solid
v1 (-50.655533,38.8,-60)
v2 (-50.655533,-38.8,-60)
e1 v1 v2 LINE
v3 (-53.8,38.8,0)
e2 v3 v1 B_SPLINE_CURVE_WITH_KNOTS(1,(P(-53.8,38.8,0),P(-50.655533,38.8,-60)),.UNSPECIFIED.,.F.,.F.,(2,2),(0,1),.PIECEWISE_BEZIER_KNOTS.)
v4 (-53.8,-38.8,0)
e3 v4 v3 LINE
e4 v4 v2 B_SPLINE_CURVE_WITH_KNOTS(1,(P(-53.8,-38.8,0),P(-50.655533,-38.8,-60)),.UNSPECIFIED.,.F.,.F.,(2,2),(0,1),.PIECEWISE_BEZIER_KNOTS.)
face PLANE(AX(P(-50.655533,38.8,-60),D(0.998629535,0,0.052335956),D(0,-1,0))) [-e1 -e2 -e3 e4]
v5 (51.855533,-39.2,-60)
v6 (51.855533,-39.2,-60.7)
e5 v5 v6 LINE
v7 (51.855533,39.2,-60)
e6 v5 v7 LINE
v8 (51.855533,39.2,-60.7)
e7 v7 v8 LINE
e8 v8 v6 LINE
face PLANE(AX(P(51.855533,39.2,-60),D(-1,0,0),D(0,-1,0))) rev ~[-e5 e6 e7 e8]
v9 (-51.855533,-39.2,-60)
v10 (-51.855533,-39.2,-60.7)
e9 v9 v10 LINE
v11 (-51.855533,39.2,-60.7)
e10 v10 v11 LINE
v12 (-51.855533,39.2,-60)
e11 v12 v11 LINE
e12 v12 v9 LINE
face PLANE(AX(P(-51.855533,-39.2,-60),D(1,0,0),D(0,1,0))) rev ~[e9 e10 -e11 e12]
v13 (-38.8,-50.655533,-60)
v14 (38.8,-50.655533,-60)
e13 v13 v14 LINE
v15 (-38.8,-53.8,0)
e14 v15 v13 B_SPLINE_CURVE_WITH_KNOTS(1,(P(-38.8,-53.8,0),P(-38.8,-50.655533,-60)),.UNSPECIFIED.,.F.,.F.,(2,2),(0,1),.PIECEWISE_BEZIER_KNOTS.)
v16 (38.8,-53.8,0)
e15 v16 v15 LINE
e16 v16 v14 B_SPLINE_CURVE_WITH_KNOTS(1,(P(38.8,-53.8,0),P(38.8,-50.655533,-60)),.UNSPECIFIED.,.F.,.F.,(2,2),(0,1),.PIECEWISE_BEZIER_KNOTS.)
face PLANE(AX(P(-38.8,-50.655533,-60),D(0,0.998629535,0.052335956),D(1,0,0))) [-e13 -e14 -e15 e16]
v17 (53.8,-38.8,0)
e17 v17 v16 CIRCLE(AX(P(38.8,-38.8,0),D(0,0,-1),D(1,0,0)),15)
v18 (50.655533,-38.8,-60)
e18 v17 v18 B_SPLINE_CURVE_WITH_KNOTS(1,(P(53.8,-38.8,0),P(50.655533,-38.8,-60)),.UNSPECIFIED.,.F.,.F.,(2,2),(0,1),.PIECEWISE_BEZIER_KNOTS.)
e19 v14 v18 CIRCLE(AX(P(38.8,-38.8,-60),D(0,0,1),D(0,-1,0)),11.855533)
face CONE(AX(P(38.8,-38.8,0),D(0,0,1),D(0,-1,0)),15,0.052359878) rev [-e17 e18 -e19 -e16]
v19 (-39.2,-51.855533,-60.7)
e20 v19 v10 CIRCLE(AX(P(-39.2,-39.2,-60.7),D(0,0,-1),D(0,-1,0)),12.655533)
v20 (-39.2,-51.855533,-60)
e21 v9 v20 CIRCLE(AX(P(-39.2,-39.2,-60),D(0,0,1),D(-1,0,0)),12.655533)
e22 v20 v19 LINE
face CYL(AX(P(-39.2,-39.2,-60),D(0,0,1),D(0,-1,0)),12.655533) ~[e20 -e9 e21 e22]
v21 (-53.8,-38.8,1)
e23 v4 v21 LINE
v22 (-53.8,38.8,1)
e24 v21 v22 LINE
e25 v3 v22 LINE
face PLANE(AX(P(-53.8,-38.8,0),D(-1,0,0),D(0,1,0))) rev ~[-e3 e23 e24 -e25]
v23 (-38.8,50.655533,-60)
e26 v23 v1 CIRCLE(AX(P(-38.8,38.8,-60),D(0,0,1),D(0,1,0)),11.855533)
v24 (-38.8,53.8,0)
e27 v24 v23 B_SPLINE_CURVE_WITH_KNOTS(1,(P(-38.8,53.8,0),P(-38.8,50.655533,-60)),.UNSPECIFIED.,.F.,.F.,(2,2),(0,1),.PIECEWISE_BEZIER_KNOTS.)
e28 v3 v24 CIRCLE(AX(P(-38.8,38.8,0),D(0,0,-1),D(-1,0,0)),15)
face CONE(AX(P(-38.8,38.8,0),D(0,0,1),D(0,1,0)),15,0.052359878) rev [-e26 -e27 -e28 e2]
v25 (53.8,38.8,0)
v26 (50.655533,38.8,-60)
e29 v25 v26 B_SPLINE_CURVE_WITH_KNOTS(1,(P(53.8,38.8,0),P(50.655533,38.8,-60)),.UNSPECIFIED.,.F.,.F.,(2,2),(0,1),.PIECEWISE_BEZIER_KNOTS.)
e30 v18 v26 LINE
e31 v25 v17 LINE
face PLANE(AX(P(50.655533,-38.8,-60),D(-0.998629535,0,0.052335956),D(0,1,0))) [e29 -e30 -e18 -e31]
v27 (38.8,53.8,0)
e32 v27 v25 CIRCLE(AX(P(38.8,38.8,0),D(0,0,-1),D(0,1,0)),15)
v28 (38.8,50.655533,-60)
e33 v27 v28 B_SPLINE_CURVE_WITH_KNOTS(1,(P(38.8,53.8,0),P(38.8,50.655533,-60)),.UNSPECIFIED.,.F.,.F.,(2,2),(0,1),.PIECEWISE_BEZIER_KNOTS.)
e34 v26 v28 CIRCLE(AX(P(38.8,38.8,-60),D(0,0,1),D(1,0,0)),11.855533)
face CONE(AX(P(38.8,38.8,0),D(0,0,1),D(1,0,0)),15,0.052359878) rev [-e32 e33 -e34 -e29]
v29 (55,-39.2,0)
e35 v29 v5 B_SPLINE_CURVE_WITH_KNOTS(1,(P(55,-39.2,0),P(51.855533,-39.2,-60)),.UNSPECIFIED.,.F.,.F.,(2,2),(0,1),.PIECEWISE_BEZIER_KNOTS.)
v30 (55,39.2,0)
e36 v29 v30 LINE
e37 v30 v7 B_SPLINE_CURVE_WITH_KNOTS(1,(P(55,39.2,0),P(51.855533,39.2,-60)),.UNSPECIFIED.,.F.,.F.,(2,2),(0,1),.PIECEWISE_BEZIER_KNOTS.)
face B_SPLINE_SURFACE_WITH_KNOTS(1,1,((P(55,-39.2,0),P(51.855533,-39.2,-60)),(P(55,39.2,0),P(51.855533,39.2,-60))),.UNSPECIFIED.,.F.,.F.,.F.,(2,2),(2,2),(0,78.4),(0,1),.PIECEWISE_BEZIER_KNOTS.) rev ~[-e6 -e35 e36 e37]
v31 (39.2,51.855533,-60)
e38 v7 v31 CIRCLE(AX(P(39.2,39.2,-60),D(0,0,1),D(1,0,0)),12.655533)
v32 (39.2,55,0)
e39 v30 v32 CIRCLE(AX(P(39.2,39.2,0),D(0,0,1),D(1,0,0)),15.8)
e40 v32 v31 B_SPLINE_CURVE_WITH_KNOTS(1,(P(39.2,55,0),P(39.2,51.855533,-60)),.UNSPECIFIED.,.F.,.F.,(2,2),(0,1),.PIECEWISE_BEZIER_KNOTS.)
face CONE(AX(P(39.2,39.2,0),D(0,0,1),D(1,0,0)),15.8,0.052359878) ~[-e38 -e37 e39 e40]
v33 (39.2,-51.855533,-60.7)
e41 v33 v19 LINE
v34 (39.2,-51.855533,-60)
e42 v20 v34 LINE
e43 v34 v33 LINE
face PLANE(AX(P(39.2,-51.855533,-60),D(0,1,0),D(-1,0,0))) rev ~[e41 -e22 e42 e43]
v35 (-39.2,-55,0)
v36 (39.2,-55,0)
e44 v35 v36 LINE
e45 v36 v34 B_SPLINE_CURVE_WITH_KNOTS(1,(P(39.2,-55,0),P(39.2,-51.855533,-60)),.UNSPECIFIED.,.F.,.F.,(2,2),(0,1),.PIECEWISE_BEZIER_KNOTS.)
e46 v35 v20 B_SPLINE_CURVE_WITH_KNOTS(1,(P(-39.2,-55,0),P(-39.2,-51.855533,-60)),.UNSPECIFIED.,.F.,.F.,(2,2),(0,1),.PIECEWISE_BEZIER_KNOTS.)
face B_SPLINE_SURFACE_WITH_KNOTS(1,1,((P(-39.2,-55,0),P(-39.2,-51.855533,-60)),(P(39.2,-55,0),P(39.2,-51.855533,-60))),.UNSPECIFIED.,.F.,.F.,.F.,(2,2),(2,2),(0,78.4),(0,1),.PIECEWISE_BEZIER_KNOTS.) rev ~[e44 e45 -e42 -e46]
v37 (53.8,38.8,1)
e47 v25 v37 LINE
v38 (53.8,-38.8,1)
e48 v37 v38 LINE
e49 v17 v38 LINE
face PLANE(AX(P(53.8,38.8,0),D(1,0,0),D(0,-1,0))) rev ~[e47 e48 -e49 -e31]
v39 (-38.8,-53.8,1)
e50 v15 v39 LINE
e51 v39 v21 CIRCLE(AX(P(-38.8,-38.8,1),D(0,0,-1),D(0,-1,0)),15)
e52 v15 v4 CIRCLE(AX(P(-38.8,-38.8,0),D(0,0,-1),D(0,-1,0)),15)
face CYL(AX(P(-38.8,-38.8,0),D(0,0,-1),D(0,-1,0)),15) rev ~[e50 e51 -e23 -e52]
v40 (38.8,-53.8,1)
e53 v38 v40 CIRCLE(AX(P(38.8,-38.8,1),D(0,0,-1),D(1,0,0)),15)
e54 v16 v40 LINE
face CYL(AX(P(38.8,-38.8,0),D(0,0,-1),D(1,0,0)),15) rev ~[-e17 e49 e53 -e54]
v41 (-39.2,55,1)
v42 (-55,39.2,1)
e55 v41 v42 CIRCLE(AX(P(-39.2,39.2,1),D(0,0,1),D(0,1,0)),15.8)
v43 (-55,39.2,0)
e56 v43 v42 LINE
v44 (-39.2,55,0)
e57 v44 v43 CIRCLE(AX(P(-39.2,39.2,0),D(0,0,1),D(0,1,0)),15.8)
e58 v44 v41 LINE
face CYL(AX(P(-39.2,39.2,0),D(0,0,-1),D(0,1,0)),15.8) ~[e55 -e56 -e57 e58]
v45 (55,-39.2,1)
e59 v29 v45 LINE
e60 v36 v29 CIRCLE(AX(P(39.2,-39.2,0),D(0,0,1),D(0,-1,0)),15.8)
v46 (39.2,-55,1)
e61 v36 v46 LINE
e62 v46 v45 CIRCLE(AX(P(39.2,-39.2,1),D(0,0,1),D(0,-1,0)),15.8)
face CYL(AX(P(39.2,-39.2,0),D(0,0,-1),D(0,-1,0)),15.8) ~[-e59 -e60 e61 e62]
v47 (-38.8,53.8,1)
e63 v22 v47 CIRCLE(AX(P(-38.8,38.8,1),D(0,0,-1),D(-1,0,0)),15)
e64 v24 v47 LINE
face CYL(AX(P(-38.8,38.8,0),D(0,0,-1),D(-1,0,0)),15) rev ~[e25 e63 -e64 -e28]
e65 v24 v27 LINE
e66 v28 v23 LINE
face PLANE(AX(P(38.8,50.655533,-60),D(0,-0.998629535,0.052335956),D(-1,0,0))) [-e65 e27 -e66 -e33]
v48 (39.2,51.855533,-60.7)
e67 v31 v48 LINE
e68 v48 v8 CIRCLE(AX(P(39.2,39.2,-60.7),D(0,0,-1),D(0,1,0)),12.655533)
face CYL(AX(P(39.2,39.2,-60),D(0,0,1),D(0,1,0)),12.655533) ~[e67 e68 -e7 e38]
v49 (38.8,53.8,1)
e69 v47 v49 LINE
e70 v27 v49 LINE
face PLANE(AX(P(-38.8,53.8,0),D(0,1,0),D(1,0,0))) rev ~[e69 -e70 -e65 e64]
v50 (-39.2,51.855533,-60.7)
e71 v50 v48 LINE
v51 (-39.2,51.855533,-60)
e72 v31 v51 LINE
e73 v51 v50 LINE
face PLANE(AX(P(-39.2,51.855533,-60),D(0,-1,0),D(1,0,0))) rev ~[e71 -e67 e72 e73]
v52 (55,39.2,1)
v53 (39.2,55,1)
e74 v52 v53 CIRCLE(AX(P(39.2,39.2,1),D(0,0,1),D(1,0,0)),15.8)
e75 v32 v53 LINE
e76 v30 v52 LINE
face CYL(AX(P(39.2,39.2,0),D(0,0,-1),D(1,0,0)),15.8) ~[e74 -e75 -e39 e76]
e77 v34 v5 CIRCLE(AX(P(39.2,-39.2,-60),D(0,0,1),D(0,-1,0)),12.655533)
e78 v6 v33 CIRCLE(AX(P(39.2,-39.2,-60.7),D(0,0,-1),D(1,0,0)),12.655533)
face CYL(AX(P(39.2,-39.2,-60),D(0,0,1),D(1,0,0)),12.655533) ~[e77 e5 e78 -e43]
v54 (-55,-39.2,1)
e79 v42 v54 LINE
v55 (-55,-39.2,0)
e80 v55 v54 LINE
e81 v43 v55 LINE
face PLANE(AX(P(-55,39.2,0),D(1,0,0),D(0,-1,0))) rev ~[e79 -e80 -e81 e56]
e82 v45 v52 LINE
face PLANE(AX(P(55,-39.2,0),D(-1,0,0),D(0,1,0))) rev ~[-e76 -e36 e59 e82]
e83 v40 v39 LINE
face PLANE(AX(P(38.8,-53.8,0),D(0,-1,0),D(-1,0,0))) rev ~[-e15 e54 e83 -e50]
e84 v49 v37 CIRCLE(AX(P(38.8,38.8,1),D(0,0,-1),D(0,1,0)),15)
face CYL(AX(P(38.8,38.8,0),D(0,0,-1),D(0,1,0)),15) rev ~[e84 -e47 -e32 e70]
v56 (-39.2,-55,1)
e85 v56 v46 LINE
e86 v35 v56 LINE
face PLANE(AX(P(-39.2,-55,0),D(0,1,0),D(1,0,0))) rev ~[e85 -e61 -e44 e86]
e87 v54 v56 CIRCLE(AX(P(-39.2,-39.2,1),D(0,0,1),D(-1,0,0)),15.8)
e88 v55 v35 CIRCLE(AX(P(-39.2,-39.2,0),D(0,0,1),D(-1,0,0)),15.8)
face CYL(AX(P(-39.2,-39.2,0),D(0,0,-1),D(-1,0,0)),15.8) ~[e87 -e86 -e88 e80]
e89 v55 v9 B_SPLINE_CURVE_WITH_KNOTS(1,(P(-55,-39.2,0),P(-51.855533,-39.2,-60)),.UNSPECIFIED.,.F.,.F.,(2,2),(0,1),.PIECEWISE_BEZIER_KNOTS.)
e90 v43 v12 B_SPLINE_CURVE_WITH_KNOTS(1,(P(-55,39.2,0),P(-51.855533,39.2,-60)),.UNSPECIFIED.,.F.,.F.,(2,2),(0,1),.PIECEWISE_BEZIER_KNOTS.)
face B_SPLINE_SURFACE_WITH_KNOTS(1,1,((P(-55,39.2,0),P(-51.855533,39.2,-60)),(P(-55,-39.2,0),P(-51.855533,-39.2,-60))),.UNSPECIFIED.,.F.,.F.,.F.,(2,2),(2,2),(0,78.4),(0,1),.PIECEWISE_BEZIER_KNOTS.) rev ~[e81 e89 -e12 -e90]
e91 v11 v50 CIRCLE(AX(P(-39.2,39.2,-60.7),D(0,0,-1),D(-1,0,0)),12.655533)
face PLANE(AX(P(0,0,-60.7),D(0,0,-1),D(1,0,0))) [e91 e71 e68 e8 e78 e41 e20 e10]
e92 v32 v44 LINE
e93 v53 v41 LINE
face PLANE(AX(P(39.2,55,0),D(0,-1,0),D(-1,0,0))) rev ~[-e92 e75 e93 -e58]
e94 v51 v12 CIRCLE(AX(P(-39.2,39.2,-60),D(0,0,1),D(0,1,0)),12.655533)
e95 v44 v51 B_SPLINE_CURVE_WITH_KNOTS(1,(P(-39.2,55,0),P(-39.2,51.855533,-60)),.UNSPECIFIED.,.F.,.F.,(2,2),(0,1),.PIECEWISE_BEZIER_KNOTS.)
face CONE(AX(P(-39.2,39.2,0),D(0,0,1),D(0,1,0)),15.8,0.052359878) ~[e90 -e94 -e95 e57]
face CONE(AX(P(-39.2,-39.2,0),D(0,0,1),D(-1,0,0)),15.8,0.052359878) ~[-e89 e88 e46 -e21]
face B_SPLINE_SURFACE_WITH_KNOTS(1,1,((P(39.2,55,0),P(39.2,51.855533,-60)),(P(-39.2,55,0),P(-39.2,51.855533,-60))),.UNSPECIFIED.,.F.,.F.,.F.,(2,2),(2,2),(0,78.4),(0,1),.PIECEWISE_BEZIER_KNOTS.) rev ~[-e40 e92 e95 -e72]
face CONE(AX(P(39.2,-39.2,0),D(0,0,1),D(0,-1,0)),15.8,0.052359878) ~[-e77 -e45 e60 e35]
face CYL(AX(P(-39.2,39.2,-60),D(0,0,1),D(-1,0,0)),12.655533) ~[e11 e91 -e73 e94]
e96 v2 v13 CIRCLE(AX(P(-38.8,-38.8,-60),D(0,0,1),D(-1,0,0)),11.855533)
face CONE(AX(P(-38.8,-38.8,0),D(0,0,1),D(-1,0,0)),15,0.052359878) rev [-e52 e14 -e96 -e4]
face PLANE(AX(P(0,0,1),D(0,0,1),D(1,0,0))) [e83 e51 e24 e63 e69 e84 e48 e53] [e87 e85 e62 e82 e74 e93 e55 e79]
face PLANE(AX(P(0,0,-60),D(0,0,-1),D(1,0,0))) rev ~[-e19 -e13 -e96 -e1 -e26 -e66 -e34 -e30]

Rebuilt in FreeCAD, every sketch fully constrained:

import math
import FreeCAD as App
import Part
import Sketcher

doc = App.newDocument("Part")
body = doc.addObject("PartDesign::Body", "Body")

# Sketch on XY plane
sketch1 = body.newObject("Sketcher::SketchObject", "Sketch")
sketch1.AttachmentSupport = (doc.getObject("XY_Plane"), [""])
sketch1.MapMode = "FlatFace"
sketch1.addGeometry([
    Part.LineSegment(App.Vector(39, 55, 0), App.Vector(-39, 55, 0)),  # 0
    Part.ArcOfCircle(Part.Circle(App.Vector(-39, 39, 0), App.Vector(0, 0, 1), 16), math.radians(90), math.radians(180)),  # 1
    Part.LineSegment(App.Vector(-55, 39, 0), App.Vector(-55, -39, 0)),  # 2
    Part.ArcOfCircle(Part.Circle(App.Vector(-39, -39, 0), App.Vector(0, 0, 1), 16), math.radians(180), math.radians(270)),  # 3
    Part.LineSegment(App.Vector(-39, -55, 0), App.Vector(39, -55, 0)),  # 4
    Part.ArcOfCircle(Part.Circle(App.Vector(39, -39, 0), App.Vector(0, 0, 1), 16), math.radians(-90), math.radians(0)),  # 5
    Part.LineSegment(App.Vector(55, -39, 0), App.Vector(55, 39, 0)),  # 6
    Part.ArcOfCircle(Part.Circle(App.Vector(39, 39, 0), App.Vector(0, 0, 1), 16), math.radians(0), math.radians(90)),  # 7
    Part.LineSegment(App.Vector(-54, -39, 0), App.Vector(-54, 39, 0)),  # 8
    Part.ArcOfCircle(Part.Circle(App.Vector(-39, 39, 0), App.Vector(0, 0, 1), 15), math.radians(90), math.radians(180)),  # 9
    Part.LineSegment(App.Vector(-39, 54, 0), App.Vector(39, 54, 0)),  # 10
    Part.ArcOfCircle(Part.Circle(App.Vector(39, 39, 0), App.Vector(0, 0, 1), 15), math.radians(0), math.radians(90)),  # 11
    Part.LineSegment(App.Vector(54, 39, 0), App.Vector(54, -39, 0)),  # 12
    Part.ArcOfCircle(Part.Circle(App.Vector(39, -39, 0), App.Vector(0, 0, 1), 15), math.radians(-90), math.radians(0)),  # 13
    Part.LineSegment(App.Vector(39, -54, 0), App.Vector(-39, -54, 0)),  # 14
    Part.ArcOfCircle(Part.Circle(App.Vector(-39, -39, 0), App.Vector(0, 0, 1), 15), math.radians(180), math.radians(270)),  # 15
], False)
sketch1.addConstraint([
    Sketcher.Constraint("Tangent", 0, 2, 1, 1),
    Sketcher.Constraint("Tangent", 1, 2, 2, 1),
    Sketcher.Constraint("Tangent", 2, 2, 3, 1),
    Sketcher.Constraint("Tangent", 3, 2, 4, 1),
    Sketcher.Constraint("Tangent", 4, 2, 5, 1),
    Sketcher.Constraint("Tangent", 5, 2, 6, 1),
    Sketcher.Constraint("Tangent", 6, 2, 7, 1),
    Sketcher.Constraint("Tangent", 7, 2, 0, 1),
    Sketcher.Constraint("Tangent", 8, 2, 9, 2),
    Sketcher.Constraint("Tangent", 9, 1, 10, 1),
    Sketcher.Constraint("Tangent", 10, 2, 11, 2),
    Sketcher.Constraint("Tangent", 11, 1, 12, 1),
    Sketcher.Constraint("Tangent", 12, 2, 13, 2),
    Sketcher.Constraint("Tangent", 13, 1, 14, 1),
    Sketcher.Constraint("Tangent", 14, 2, 15, 2),
    Sketcher.Constraint("Tangent", 15, 1, 8, 1),
    Sketcher.Constraint("Horizontal", 0),
    Sketcher.Constraint("Vertical", 2),
    Sketcher.Constraint("Horizontal", 4),
    Sketcher.Constraint("Vertical", 6),
    Sketcher.Constraint("Vertical", 8),
    Sketcher.Constraint("Horizontal", 10),
    Sketcher.Constraint("Vertical", 12),
    Sketcher.Constraint("Horizontal", 14),
    Sketcher.Constraint("Equal", 1, 3),
    Sketcher.Constraint("Equal", 3, 5),
    Sketcher.Constraint("Equal", 5, 7),
    Sketcher.Constraint("Equal", 9, 11),
    Sketcher.Constraint("Equal", 11, 13),
    Sketcher.Constraint("Equal", 13, 15),
    Sketcher.Constraint("Symmetric", 1, 3, 5, 3, -1, 1),
    Sketcher.Constraint("Symmetric", 9, 3, 13, 3, -1, 1),
    Sketcher.Constraint("Equal", 4, 2),
    Sketcher.Constraint("Equal", 14, 8),
    Sketcher.Constraint("Radius", 9, 15.0),
    Sketcher.Constraint("Radius", 1, 15.8),
    Sketcher.Constraint("DistanceX", 0, 2, 0, 1, 78.4),
    Sketcher.Constraint("DistanceX", 10, 1, 10, 2, 77.6),
])
pad1 = body.newObject("PartDesign::Pad", "Pad")
pad1.Profile = sketch1
pad1.Length = 1

# Sketch on XY plane
sketch2 = body.newObject("Sketcher::SketchObject", "Sketch001")
sketch2.AttachmentSupport = (doc.getObject("XY_Plane"), [""])
sketch2.MapMode = "FlatFace"
sketch2.addGeometry([
    Part.LineSegment(App.Vector(39, 55, 0), App.Vector(-39, 55, 0)),  # 0
    Part.ArcOfCircle(Part.Circle(App.Vector(-39, 39, 0), App.Vector(0, 0, 1), 16), math.radians(90), math.radians(180)),  # 1
    Part.LineSegment(App.Vector(-55, 39, 0), App.Vector(-55, -39, 0)),  # 2
    Part.ArcOfCircle(Part.Circle(App.Vector(-39, -39, 0), App.Vector(0, 0, 1), 16), math.radians(180), math.radians(270)),  # 3
    Part.LineSegment(App.Vector(-39, -55, 0), App.Vector(39, -55, 0)),  # 4
    Part.ArcOfCircle(Part.Circle(App.Vector(39, -39, 0), App.Vector(0, 0, 1), 16), math.radians(-90), math.radians(0)),  # 5
    Part.LineSegment(App.Vector(55, -39, 0), App.Vector(55, 39, 0)),  # 6
    Part.ArcOfCircle(Part.Circle(App.Vector(39, 39, 0), App.Vector(0, 0, 1), 16), math.radians(0), math.radians(90)),  # 7
], False)
sketch2.addConstraint([
    Sketcher.Constraint("Tangent", 0, 2, 1, 1),
    Sketcher.Constraint("Tangent", 1, 2, 2, 1),
    Sketcher.Constraint("Tangent", 2, 2, 3, 1),
    Sketcher.Constraint("Tangent", 3, 2, 4, 1),
    Sketcher.Constraint("Tangent", 4, 2, 5, 1),
    Sketcher.Constraint("Tangent", 5, 2, 6, 1),
    Sketcher.Constraint("Tangent", 6, 2, 7, 1),
    Sketcher.Constraint("Tangent", 7, 2, 0, 1),
    Sketcher.Constraint("Horizontal", 0),
    Sketcher.Constraint("Vertical", 2),
    Sketcher.Constraint("Horizontal", 4),
    Sketcher.Constraint("Vertical", 6),
    Sketcher.Constraint("Equal", 1, 3),
    Sketcher.Constraint("Equal", 3, 5),
    Sketcher.Constraint("Equal", 5, 7),
    Sketcher.Constraint("Symmetric", 1, 3, 5, 3, -1, 1),
    Sketcher.Constraint("Equal", 4, 2),
    Sketcher.Constraint("Radius", 1, 15.8),
    Sketcher.Constraint("DistanceX", 0, 2, 0, 1, 78.4),
])
pad2 = body.newObject("PartDesign::Pad", "Pad001")
pad2.Profile = sketch2
pad2.Length = 60
pad2.Reversed = True
pad2.TaperAngle = -3

# Sketch on XY plane
sketch3 = body.newObject("Sketcher::SketchObject", "Sketch002")
sketch3.AttachmentSupport = (doc.getObject("XY_Plane"), [""])
sketch3.MapMode = "FlatFace"
sketch3.addGeometry([
    Part.LineSegment(App.Vector(39, 54, 0), App.Vector(-39, 54, 0)),  # 0
    Part.ArcOfCircle(Part.Circle(App.Vector(-39, 39, 0), App.Vector(0, 0, 1), 15), math.radians(90), math.radians(180)),  # 1
    Part.LineSegment(App.Vector(-54, 39, 0), App.Vector(-54, -39, 0)),  # 2
    Part.ArcOfCircle(Part.Circle(App.Vector(-39, -39, 0), App.Vector(0, 0, 1), 15), math.radians(180), math.radians(270)),  # 3
    Part.LineSegment(App.Vector(-39, -54, 0), App.Vector(39, -54, 0)),  # 4
    Part.ArcOfCircle(Part.Circle(App.Vector(39, -39, 0), App.Vector(0, 0, 1), 15), math.radians(-90), math.radians(0)),  # 5
    Part.LineSegment(App.Vector(54, -39, 0), App.Vector(54, 39, 0)),  # 6
    Part.ArcOfCircle(Part.Circle(App.Vector(39, 39, 0), App.Vector(0, 0, 1), 15), math.radians(0), math.radians(90)),  # 7
], False)
sketch3.addConstraint([
    Sketcher.Constraint("Tangent", 0, 2, 1, 1),
    Sketcher.Constraint("Tangent", 1, 2, 2, 1),
    Sketcher.Constraint("Tangent", 2, 2, 3, 1),
    Sketcher.Constraint("Tangent", 3, 2, 4, 1),
    Sketcher.Constraint("Tangent", 4, 2, 5, 1),
    Sketcher.Constraint("Tangent", 5, 2, 6, 1),
    Sketcher.Constraint("Tangent", 6, 2, 7, 1),
    Sketcher.Constraint("Tangent", 7, 2, 0, 1),
    Sketcher.Constraint("Horizontal", 0),
    Sketcher.Constraint("Vertical", 2),
    Sketcher.Constraint("Horizontal", 4),
    Sketcher.Constraint("Vertical", 6),
    Sketcher.Constraint("Equal", 1, 3),
    Sketcher.Constraint("Equal", 3, 5),
    Sketcher.Constraint("Equal", 5, 7),
    Sketcher.Constraint("Symmetric", 1, 3, 5, 3, -1, 1),
    Sketcher.Constraint("Equal", 4, 2),
    Sketcher.Constraint("Radius", 1, 15.0),
    Sketcher.Constraint("DistanceX", 0, 2, 0, 1, 77.6),
])
pocket1 = body.newObject("PartDesign::Pocket", "Pocket")
pocket1.Profile = sketch3
pocket1.Length = 60
pocket1.TaperAngle = -3

# Sketch on XY plane
sketch4 = body.newObject("Sketcher::SketchObject", "Sketch003")
sketch4.AttachmentSupport = (doc.getObject("XY_Plane"), [""])
sketch4.MapMode = "FlatFace"
sketch4.AttachmentOffset = App.Placement(App.Vector(0, 0, -60), App.Rotation())
sketch4.addGeometry([
    Part.ArcOfCircle(Part.Circle(App.Vector(39, 39, 0), App.Vector(0, 0, 1), 13), math.radians(0), math.radians(90)),  # 0
    Part.LineSegment(App.Vector(52, 39, 0), App.Vector(52, -39, 0)),  # 1
    Part.ArcOfCircle(Part.Circle(App.Vector(39, -39, 0), App.Vector(0, 0, 1), 13), math.radians(-90), math.radians(0)),  # 2
    Part.LineSegment(App.Vector(39, -52, 0), App.Vector(-39, -52, 0)),  # 3
    Part.ArcOfCircle(Part.Circle(App.Vector(-39, -39, 0), App.Vector(0, 0, 1), 13), math.radians(180), math.radians(270)),  # 4
    Part.LineSegment(App.Vector(-52, -39, 0), App.Vector(-52, 39, 0)),  # 5
    Part.ArcOfCircle(Part.Circle(App.Vector(-39, 39, 0), App.Vector(0, 0, 1), 13), math.radians(90), math.radians(180)),  # 6
    Part.LineSegment(App.Vector(-39, 52, 0), App.Vector(39, 52, 0)),  # 7
], False)
sketch4.addConstraint([
    Sketcher.Constraint("Tangent", 0, 1, 1, 1),
    Sketcher.Constraint("Tangent", 1, 2, 2, 2),
    Sketcher.Constraint("Tangent", 2, 1, 3, 1),
    Sketcher.Constraint("Tangent", 3, 2, 4, 2),
    Sketcher.Constraint("Tangent", 4, 1, 5, 1),
    Sketcher.Constraint("Tangent", 5, 2, 6, 2),
    Sketcher.Constraint("Tangent", 6, 1, 7, 1),
    Sketcher.Constraint("Tangent", 7, 2, 0, 2),
    Sketcher.Constraint("Vertical", 1),
    Sketcher.Constraint("Horizontal", 3),
    Sketcher.Constraint("Vertical", 5),
    Sketcher.Constraint("Horizontal", 7),
    Sketcher.Constraint("Equal", 0, 2),
    Sketcher.Constraint("Equal", 2, 4),
    Sketcher.Constraint("Equal", 4, 6),
    Sketcher.Constraint("Symmetric", 0, 3, 4, 3, -1, 1),
    Sketcher.Constraint("Equal", 7, 1),
    Sketcher.Constraint("DistanceX", 3, 2, 3, 1, 78.4),
    Sketcher.Constraint("Radius", 0, 12.655533),
])
pad3 = body.newObject("PartDesign::Pad", "Pad002")
pad3.Profile = sketch4
pad3.Length = 0.7
pad3.Reversed = True

doc.recompute()
